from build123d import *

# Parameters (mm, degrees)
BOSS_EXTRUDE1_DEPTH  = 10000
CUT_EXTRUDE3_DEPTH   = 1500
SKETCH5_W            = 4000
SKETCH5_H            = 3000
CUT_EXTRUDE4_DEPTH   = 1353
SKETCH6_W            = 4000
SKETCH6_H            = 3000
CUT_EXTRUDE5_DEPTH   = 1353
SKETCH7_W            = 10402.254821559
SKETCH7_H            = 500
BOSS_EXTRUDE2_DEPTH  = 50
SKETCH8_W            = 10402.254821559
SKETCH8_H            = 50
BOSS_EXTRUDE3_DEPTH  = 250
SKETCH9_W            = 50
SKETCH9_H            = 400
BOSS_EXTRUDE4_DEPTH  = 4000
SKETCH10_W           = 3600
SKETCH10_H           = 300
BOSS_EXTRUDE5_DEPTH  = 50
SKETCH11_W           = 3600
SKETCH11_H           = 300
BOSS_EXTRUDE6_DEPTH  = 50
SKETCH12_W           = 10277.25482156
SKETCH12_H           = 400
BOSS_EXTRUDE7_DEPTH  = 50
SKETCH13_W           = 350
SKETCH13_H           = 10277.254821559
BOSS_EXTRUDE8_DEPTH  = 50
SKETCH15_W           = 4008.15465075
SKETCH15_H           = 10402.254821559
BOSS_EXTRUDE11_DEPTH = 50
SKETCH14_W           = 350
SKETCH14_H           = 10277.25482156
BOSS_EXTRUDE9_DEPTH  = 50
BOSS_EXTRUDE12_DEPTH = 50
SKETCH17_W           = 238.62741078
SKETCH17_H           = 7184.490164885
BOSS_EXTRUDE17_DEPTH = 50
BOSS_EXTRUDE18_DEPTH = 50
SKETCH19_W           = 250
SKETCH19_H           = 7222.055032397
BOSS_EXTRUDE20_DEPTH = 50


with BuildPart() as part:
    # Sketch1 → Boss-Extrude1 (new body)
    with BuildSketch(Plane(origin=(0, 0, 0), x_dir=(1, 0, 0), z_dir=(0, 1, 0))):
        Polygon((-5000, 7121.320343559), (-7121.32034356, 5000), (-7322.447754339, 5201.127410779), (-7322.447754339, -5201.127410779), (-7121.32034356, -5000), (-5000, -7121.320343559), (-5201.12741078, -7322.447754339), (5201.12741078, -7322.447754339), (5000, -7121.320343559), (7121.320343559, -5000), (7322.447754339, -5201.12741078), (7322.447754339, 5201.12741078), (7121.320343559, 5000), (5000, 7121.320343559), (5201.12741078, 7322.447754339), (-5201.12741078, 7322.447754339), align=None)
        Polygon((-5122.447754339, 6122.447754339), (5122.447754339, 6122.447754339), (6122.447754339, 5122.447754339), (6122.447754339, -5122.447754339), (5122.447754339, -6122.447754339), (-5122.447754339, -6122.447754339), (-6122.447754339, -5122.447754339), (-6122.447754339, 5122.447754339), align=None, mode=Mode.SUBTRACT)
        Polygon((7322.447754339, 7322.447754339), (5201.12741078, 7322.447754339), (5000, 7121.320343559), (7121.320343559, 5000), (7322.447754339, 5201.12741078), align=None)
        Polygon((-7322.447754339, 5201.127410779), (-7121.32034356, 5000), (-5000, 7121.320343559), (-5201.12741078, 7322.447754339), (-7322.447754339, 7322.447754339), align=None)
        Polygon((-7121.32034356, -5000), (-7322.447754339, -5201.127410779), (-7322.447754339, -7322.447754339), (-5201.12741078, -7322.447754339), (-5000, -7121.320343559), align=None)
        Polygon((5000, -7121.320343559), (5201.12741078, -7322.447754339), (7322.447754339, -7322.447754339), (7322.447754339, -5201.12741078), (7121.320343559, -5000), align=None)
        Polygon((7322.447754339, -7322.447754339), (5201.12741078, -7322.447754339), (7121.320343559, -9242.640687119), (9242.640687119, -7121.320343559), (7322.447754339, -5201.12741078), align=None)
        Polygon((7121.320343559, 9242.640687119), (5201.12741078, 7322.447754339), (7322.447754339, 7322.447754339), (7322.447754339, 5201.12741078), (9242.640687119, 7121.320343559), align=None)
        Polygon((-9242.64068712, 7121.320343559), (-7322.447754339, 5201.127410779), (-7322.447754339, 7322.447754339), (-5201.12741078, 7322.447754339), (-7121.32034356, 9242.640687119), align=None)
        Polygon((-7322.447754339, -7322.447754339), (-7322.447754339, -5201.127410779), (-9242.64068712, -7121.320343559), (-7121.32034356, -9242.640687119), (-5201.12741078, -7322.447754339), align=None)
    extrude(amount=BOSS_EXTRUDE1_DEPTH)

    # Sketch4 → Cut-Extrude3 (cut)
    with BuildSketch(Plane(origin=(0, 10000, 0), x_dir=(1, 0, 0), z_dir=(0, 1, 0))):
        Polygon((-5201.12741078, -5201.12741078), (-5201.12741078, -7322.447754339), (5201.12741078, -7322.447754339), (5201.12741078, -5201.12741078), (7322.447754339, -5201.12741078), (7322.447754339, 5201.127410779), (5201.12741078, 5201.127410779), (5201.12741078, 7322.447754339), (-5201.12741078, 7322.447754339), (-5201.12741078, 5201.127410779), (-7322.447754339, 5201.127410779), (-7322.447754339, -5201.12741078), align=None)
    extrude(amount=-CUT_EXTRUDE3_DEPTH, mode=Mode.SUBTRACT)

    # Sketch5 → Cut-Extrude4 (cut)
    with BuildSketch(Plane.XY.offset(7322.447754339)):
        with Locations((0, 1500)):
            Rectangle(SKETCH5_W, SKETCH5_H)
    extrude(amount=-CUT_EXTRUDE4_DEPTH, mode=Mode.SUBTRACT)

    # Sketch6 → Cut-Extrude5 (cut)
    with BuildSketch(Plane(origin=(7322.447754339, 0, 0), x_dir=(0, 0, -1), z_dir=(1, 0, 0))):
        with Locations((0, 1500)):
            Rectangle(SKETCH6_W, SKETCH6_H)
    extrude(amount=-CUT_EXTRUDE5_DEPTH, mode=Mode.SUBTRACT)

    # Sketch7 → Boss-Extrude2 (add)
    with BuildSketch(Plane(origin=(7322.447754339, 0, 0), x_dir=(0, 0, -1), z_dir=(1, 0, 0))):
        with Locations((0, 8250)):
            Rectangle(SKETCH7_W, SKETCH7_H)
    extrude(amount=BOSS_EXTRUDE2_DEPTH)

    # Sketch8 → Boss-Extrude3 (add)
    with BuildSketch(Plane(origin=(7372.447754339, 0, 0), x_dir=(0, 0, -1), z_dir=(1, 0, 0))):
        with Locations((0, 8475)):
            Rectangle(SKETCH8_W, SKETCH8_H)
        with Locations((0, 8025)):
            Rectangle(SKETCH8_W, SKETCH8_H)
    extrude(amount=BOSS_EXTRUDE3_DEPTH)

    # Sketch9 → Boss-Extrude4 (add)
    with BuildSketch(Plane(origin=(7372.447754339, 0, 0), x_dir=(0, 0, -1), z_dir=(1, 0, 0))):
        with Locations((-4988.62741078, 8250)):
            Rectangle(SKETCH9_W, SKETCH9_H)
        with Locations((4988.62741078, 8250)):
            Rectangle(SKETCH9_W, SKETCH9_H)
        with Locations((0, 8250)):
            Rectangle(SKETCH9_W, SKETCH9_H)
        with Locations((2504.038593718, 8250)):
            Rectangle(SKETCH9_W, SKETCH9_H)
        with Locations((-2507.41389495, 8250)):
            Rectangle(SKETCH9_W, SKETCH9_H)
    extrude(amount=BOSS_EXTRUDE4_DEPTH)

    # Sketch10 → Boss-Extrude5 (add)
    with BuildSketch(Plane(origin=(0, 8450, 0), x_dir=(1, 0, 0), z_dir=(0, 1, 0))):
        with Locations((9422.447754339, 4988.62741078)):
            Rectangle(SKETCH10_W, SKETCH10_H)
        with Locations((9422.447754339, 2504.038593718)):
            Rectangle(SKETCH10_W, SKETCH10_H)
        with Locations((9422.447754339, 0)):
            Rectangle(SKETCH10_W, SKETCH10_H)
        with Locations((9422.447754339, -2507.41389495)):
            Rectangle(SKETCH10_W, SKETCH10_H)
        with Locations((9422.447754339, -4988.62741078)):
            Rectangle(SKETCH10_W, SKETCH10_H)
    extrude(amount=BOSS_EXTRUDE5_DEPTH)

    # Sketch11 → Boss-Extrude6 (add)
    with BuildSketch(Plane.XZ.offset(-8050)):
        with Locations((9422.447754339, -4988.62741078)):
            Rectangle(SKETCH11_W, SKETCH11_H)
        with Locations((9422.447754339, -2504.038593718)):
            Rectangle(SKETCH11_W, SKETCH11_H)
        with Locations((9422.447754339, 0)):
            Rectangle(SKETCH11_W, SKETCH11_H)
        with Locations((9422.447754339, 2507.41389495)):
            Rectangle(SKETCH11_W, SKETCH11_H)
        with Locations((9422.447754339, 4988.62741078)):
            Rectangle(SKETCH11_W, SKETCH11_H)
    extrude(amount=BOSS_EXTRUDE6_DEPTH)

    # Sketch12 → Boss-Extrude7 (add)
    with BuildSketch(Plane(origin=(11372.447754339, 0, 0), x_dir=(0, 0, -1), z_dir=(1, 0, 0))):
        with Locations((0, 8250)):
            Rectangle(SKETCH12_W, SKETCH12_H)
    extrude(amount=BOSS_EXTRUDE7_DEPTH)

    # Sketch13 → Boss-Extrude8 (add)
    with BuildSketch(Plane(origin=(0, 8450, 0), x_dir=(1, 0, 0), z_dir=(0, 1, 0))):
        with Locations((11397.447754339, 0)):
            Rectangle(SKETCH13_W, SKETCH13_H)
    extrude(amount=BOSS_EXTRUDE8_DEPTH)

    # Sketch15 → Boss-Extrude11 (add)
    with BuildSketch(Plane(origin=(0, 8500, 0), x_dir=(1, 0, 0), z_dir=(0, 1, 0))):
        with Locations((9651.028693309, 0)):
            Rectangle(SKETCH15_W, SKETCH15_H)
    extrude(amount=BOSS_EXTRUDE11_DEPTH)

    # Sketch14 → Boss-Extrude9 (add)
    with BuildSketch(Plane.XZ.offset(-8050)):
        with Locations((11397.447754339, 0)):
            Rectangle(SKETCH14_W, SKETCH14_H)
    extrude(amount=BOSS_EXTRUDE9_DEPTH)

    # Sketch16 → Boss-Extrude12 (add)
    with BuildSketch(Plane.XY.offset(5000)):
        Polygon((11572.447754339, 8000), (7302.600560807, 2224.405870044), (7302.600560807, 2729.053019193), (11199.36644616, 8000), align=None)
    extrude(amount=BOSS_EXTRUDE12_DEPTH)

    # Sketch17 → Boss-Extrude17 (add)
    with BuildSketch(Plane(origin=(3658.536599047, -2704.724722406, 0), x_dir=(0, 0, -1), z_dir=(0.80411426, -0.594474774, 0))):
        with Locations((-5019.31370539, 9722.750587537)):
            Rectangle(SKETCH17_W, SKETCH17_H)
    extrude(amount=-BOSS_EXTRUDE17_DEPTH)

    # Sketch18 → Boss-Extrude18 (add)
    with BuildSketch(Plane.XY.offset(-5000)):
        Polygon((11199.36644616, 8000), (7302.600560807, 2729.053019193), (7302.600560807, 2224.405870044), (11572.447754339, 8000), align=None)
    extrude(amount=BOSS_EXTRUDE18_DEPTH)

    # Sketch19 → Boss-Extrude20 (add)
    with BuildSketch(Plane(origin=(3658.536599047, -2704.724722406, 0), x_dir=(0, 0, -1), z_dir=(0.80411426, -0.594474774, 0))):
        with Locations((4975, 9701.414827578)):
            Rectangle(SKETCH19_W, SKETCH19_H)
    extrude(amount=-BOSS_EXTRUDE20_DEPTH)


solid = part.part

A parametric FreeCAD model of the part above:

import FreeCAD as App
import Part
import Sketcher
Q = App.Units.Quantity


def add_polygon(sketch, points):
    """Adds a closed chain of lines whose ends are joined by coincident constraints."""
    first, n = sketch.GeometryCount, len(points)
    for a, b in zip(points, points[1:] + points[:1]):
        sketch.addGeometry(Part.LineSegment(App.Vector(*a, 0), App.Vector(*b, 0)), False)
    for i in range(n):
        sketch.addConstraint(Sketcher.Constraint("Coincident", first + i, 2, first + (i + 1) % n, 1))

doc = App.newDocument("Part")
params = doc.addObject("Spreadsheet::Sheet", "Params")
for row, (alias, value) in enumerate([
    ("sketch1_length", "3000 mm"),
    ("pad1_length", "10000 mm"),
    ("pocket1_length", "1500 mm"),
    ("sketch3_width", "4000 mm"),
    ("sketch3_height", "3000 mm"),
    ("pocket2_length", "1353 mm"),
    ("sketch4_width", "3000 mm"),
    ("sketch4_height", "4000 mm"),
    ("pocket3_length", "1353 mm"),
    ("sketch5_width", "500 mm"),
    ("pad2_length", "50 mm"),
    ("sketch6_width", "50 mm"),
    ("pad3_length", "250 mm"),
    ("sketch7_width", "400 mm"),
    ("sketch7_height", "50 mm"),
    ("pad4_length", "4000 mm"),
    ("sketch8_width", "3600 mm"),
    ("sketch8_height", "300 mm"),
    ("pad5_length", "50 mm"),
    ("sketch9_width", "3600 mm"),
    ("sketch9_height", "300 mm"),
    ("pad6_length", "50 mm"),
    ("sketch10_width", "400 mm"),
    ("pad7_length", "50 mm"),
    ("sketch11_width", "350 mm"),
    ("pad8_length", "50 mm"),
    ("pad9_length", "50 mm"),
    ("sketch13_width", "350 mm"),
    ("pad10_length", "50 mm"),
    ("pad11_length", "50 mm"),
    ("pad12_length", "50 mm"),
    ("pad13_length", "50 mm"),
    ("sketch17_width", "250 mm"),
    ("pad14_length", "50 mm"),
], start=1):
    params.set(f"A{row}", alias)
    params.set(f"B{row}", "=" + value)
    params.setAlias(f"B{row}", alias)

body = doc.addObject("PartDesign::Body", "Body")

# Sketch on XZ plane
sketch1 = body.newObject("Sketcher::SketchObject", "Sketch")
sketch1.AttachmentSupport = (doc.getObject("XZ_Plane"), [""])
sketch1.MapMode = "FlatFace"
add_polygon(sketch1, [(5201, -7322), (-5201, -7322), (-7121, -9243), (-9243, -7121), (-7322, -5201), (-7322, 5201), (-9243, 7121), (-7121, 9243), (-5201, 7322), (5201, 7322), (7121, 9243), (9243, 7121), (7322, 5201), (7322, -5201), (9243, -7121), (7121, -9243)])  # lines 0-15
add_polygon(sketch1, [(-6122, -5122), (-5122, -6122), (5122, -6122), (6122, -5122), (6122, 5122), (5122, 6122), (-5122, 6122), (-6122, 5122)])  # lines 16-23
sketch1.addConstraint([
    Sketcher.Constraint("Horizontal", 0),
    Sketcher.Constraint("Vertical", 4),
    Sketcher.Constraint("Horizontal", 8),
    Sketcher.Constraint("Vertical", 12),
    Sketcher.Constraint("Horizontal", 17),
    Sketcher.Constraint("Vertical", 19),
    Sketcher.Constraint("Horizontal", 21),
    Sketcher.Constraint("Vertical", 23),
    Sketcher.Constraint("Symmetric", 0, 2, 8, 2, -1, 1),
    Sketcher.Constraint("Symmetric", 1, 2, 9, 2, -1, 1),
    Sketcher.Constraint("Symmetric", 2, 2, 10, 2, -1, 1),
    Sketcher.Constraint("Symmetric", 3, 2, 11, 2, -1, 1),
    Sketcher.Constraint("Symmetric", 5, 2, 13, 2, -1, 1),
    Sketcher.Constraint("Symmetric", 6, 2, 14, 2, -1, 1),
    Sketcher.Constraint("Symmetric", 16, 2, 20, 2, -1, 1),
    Sketcher.Constraint("Symmetric", 18, 2, 22, 2, -1, 1),
    Sketcher.Constraint("Symmetric", 6, 2, 9, 2, -2),
    Sketcher.Constraint("Symmetric", 5, 2, 10, 2, -2),
    Sketcher.Constraint("Perpendicular", 1, 2),
    Sketcher.Constraint("Perpendicular", 2, 3),
    Sketcher.Constraint("Perpendicular", 3, 5),
    Sketcher.Constraint("Perpendicular", 5, 6),
    Sketcher.Constraint("Perpendicular", 6, 7),
    Sketcher.Constraint("Perpendicular", 11, 13),
    Sketcher.Constraint("Perpendicular", 14, 15),
    Sketcher.Constraint("Parallel", 15, 16),
    Sketcher.Constraint("Perpendicular", 16, 18),
    Sketcher.Constraint("Perpendicular", 18, 20),
    Sketcher.Constraint("Perpendicular", 20, 22),
    Sketcher.Constraint("Horizontal", 19, 2, 22, 2),
    Sketcher.Constraint("Equal", 8, 4),
    Sketcher.Constraint("Equal", 21, 19),
    Sketcher.Constraint("Equal", 1, 3),
    Sketcher.Constraint("Distance", 2, Q("3000 mm")),
    Sketcher.Constraint("DistanceY", 0, 2, 16, 2, Q("1200 mm")),
    Sketcher.Constraint("DistanceX", 3, 2, 16, 2, Q("2200 mm")),
    Sketcher.Constraint("DistanceX", 0, 2, 0, 1, Q("10402.254822 mm")),
    Sketcher.Constraint("DistanceY", 0, 2, 2, 2, Q("201.127411 mm")),
])
sketch1.setExpression("Constraints[57]", "Params.sketch1_length")
pad1 = body.newObject("PartDesign::Pad", "Pad")
pad1.Profile = sketch1
pad1.setExpression("Length", "Params.pad1_length")
pad1.Reversed = True

# Sketch on XZ plane
sketch2 = body.newObject("Sketcher::SketchObject", "Sketch001")
sketch2.AttachmentSupport = (doc.getObject("XZ_Plane"), [""])
sketch2.MapMode = "FlatFace"
sketch2.AttachmentOffset = App.Placement(App.Vector(0, 0, -10000), App.Rotation())
add_polygon(sketch2, [(-5201, 5201), (-5201, 7322), (5201, 7322), (5201, 5201), (7322, 5201), (7322, -5201), (5201, -5201), (5201, -7322), (-5201, -7322), (-5201, -5201), (-7322, -5201), (-7322, 5201)])  # lines 0-11
sketch2.addConstraint([
    Sketcher.Constraint("Vertical", 0),
    Sketcher.Constraint("Horizontal", 1),
    Sketcher.Constraint("Vertical", 2),
    Sketcher.Constraint("Horizontal", 3),
    Sketcher.Constraint("Vertical", 4),
    Sketcher.Constraint("Horizontal", 5),
    Sketcher.Constraint("Vertical", 6),
    Sketcher.Constraint("Horizontal", 7),
    Sketcher.Constraint("Vertical", 8),
    Sketcher.Constraint("Horizontal", 9),
    Sketcher.Constraint("Vertical", 10),
    Sketcher.Constraint("Horizontal", 11),
    Sketcher.Constraint("Symmetric", 0, 2, 6, 2, -1, 1),
    Sketcher.Constraint("Symmetric", 2, 2, 8, 2, -1, 1),
    Sketcher.Constraint("Symmetric", 4, 2, 10, 2, -1, 1),
    Sketcher.Constraint("Symmetric", 5, 2, 8, 2, -2),
    Sketcher.Constraint("Equal", 11, 0),
    Sketcher.Constraint("Equal", 7, 4),
    Sketcher.Constraint("DistanceX", 1, 1, 1, 2, Q("10402.254822 mm")),
    Sketcher.Constraint("DistanceX", 3, 1, 3, 2, Q("2121.320344 mm")),
])
pocket1 = body.newObject("PartDesign::Pocket", "Pocket")
pocket1.Profile = sketch2
pocket1.setExpression("Length", "Params.pocket1_length")
pocket1.Reversed = True

# Sketch on XY plane
sketch3 = body.newObject("Sketcher::SketchObject", "Sketch002")
sketch3.AttachmentSupport = (doc.getObject("XY_Plane"), [""])
sketch3.MapMode = "FlatFace"
sketch3.AttachmentOffset = App.Placement(App.Vector(0, 0, 7322.447754), App.Rotation())
add_polygon(sketch3, [(-2000, 3000), (-2000, 0), (2000, 0), (2000, 3000)])  # lines 0-3
sketch3.addConstraint([
    Sketcher.Constraint("Vertical", 0),
    Sketcher.Constraint("Horizontal", 1),
    Sketcher.Constraint("Vertical", 2),
    Sketcher.Constraint("Horizontal", 3),
    Sketcher.Constraint("Symmetric", 0, 2, 1, 2, -1, 1),
    Sketcher.Constraint("DistanceX", 1, 1, 1, 2, Q("4000 mm")),
    Sketcher.Constraint("DistanceY", 0, 2, 0, 1, Q("3000 mm")),
])
sketch3.setExpression("Constraints[9]", "Params.sketch3_width")
sketch3.setExpression("Constraints[10]", "Params.sketch3_height")
pocket2 = body.newObject("PartDesign::Pocket", "Pocket001")
pocket2.Profile = sketch3
pocket2.setExpression("Length", "Params.pocket2_length")

# Sketch on YZ plane
sketch4 = body.newObject("Sketcher::SketchObject", "Sketch003")
sketch4.AttachmentSupport = (doc.getObject("YZ_Plane"), [""])
sketch4.MapMode = "FlatFace"
sketch4.AttachmentOffset = App.Placement(App.Vector(0, 0, 7322.447754), App.Rotation())
add_polygon(sketch4, [(3000, 2000), (0, 2000), (0, -2000), (3000, -2000)])  # lines 0-3
sketch4.addConstraint([
    Sketcher.Constraint("Horizontal", 0),
    Sketcher.Constraint("Vertical", 1),
    Sketcher.Constraint("Horizontal", 2),
    Sketcher.Constraint("Vertical", 3),
    Sketcher.Constraint("Symmetric", 0, 2, 1, 2, -1, 1),
    Sketcher.Constraint("DistanceX", 0, 2, 0, 1, Q("3000 mm")),
    Sketcher.Constraint("DistanceY", 1, 2, 1, 1, Q("4000 mm")),
])
sketch4.setExpression("Constraints[9]", "Params.sketch4_width")
sketch4.setExpression("Constraints[10]", "Params.sketch4_height")
pocket3 = body.newObject("PartDesign::Pocket", "Pocket002")
pocket3.Profile = sketch4
pocket3.setExpression("Length", "Params.pocket3_length")

# Sketch on YZ plane
sketch5 = body.newObject("Sketcher::SketchObject", "Sketch004")
sketch5.AttachmentSupport = (doc.getObject("YZ_Plane"), [""])
sketch5.MapMode = "FlatFace"
sketch5.AttachmentOffset = App.Placement(App.Vector(0, 0, 7322.447754), App.Rotation())
add_polygon(sketch5, [(8500, 5201), (8000, 5201), (8000, -5201), (8500, -5201)])  # lines 0-3
sketch5.addConstraint([
    Sketcher.Constraint("Horizontal", 0),
    Sketcher.Constraint("Vertical", 1),
    Sketcher.Constraint("Horizontal", 2),
    Sketcher.Constraint("Vertical", 3),
    Sketcher.Constraint("DistanceX", 0, 2, 0, 1, Q("500 mm")),
    Sketcher.Constraint("DistanceX", -1, 1, 0, 2, Q("8000 mm")),
    Sketcher.Constraint("DistanceY", 1, 2, 1, 1, Q("10402.254822 mm")),
    Sketcher.Constraint("DistanceY", -1, 1, 0, 2, Q("5201.127411 mm")),
])
sketch5.setExpression("Constraints[8]", "Params.sketch5_width")
pad2 = body.newObject("PartDesign::Pad", "Pad001")
pad2.Profile = sketch5
pad2.setExpression("Length", "Params.pad2_length")

# Sketch on YZ plane
sketch6 = body.newObject("Sketcher::SketchObject", "Sketch005")
sketch6.AttachmentSupport = (doc.getObject("YZ_Plane"), [""])
sketch6.MapMode = "FlatFace"
sketch6.AttachmentOffset = App.Placement(App.Vector(0, 0, 7372.447754), App.Rotation())
add_polygon(sketch6, [(8500, 5201), (8450, 5201), (8450, -5201), (8500, -5201)])  # lines 0-3
add_polygon(sketch6, [(8050, 5201), (8000, 5201), (8000, -5201), (8050, -5201)])  # lines 4-7
sketch6.addConstraint([
    Sketcher.Constraint("Horizontal", 0),
    Sketcher.Constraint("Vertical", 1),
    Sketcher.Constraint("Horizontal", 2),
    Sketcher.Constraint("Vertical", 3),
    Sketcher.Constraint("Horizontal", 4),
    Sketcher.Constraint("Vertical", 5),
    Sketcher.Constraint("Horizontal", 6),
    Sketcher.Constraint("Vertical", 7),
    Sketcher.Constraint("Horizontal", 3, 2, 4, 2),
    Sketcher.Constraint("Horizontal", 2, 2, 5, 2),
    Sketcher.Constraint("Equal", 2, 4),
    Sketcher.Constraint("DistanceX", 0, 2, 0, 1, Q("50 mm")),
    Sketcher.Constraint("DistanceX", -1, 1, 0, 2, Q("8450 mm")),
    Sketcher.Constraint("DistanceX", -1, 1, 4, 2, Q("8000 mm")),
    Sketcher.Constraint("DistanceY", 1, 2, 1, 1, Q("10402.254822 mm")),
    Sketcher.Constraint("DistanceY", -1, 1, 0, 2, Q("5201.127411 mm")),
])
sketch6.setExpression("Constraints[19]", "Params.sketch6_width")
pad3 = body.newObject("PartDesign::Pad", "Pad002")
pad3.Profile = sketch6
pad3.setExpression("Length", "Params.pad3_length")

# Sketch on YZ plane
sketch7 = body.newObject("Sketcher::SketchObject", "Sketch006")
sketch7.AttachmentSupport = (doc.getObject("YZ_Plane"), [""])
sketch7.MapMode = "FlatFace"
sketch7.AttachmentOffset = App.Placement(App.Vector(0, 0, 7372.447754), App.Rotation())
add_polygon(sketch7, [(8450, 5014), (8050, 5014), (8050, 4964), (8450, 4964)])  # lines 0-3
add_polygon(sketch7, [(8450, -4964), (8050, -4964), (8050, -5014), (8450, -5014)])  # lines 4-7
add_polygon(sketch7, [(8450, 25), (8050, 25), (8050, -25), (8450, -25)])  # lines 8-11
add_polygon(sketch7, [(8450, -2479), (8050, -2479), (8050, -2529), (8450, -2529)])  # lines 12-15
add_polygon(sketch7, [(8450, 2532), (8050, 2532), (8050, 2482), (8450, 2482)])  # lines 16-19
sketch7.addConstraint([
    Sketcher.Constraint("Horizontal", 0),
    Sketcher.Constraint("Vertical", 1),
    Sketcher.Constraint("Horizontal", 2),
    Sketcher.Constraint("Vertical", 3),
    Sketcher.Constraint("Horizontal", 4),
    Sketcher.Constraint("Vertical", 5),
    Sketcher.Constraint("Horizontal", 6),
    Sketcher.Constraint("Vertical", 7),
    Sketcher.Constraint("Horizontal", 8),
    Sketcher.Constraint("Vertical", 9),
    Sketcher.Constraint("Horizontal", 10),
    Sketcher.Constraint("Vertical", 11),
    Sketcher.Constraint("Horizontal", 12),
    Sketcher.Constraint("Vertical", 13),
    Sketcher.Constraint("Horizontal", 14),
    Sketcher.Constraint("Vertical", 15),
    Sketcher.Constraint("Horizontal", 16),
    Sketcher.Constraint("Vertical", 17),
    Sketcher.Constraint("Horizontal", 18),
    Sketcher.Constraint("Vertical", 19),
    Sketcher.Constraint("Symmetric", 1, 2, 4, 2, -1),
    Sketcher.Constraint("Symmetric", 3, 2, 6, 2, -1),
    Sketcher.Constraint("Vertical", 5, 2, 8, 2),
    Sketcher.Constraint("Vertical", 7, 2, 10, 2),
    Sketcher.Constraint("Vertical", 9, 2, 12, 2),
    Sketcher.Constraint("Vertical", 11, 2, 14, 2),
    Sketcher.Constraint("Vertical", 13, 2, 16, 2),
    Sketcher.Constraint("Vertical", 15, 2, 18, 2),
    Sketcher.Constraint("Equal", 7, 9),
    Sketcher.Constraint("Equal", 11, 13),
    Sketcher.Constraint("Equal", 15, 17),
    Sketcher.Constraint("DistanceX", 0, 2, 0, 1, Q("400 mm")),
    Sketcher.Constraint("DistanceY", 1, 2, 1, 1, Q("50 mm")),
    Sketcher.Constraint("DistanceX", -1, 1, 0, 2, Q("8050 mm")),
    Sketcher.Constraint("DistanceY", -1, 1, 8, 2, Q("25 mm")),
    Sketcher.Constraint("DistanceY", -1, 1, 0, 2, Q("5013.627411 mm")),
    Sketcher.Constraint("DistanceY", 12, 2, -1, 1, Q("2479.038594 mm")),
    Sketcher.Constraint("DistanceY", -1, 1, 16, 2, Q("2532.413895 mm")),
])
sketch7.setExpression("Constraints[51]", "Params.sketch7_width")
sketch7.setExpression("Constraints[52]", "Params.sketch7_height")
pad4 = body.newObject("PartDesign::Pad", "Pad003")
pad4.Profile = sketch7
pad4.setExpression("Length", "Params.pad4_length")

# Sketch on XZ plane
sketch8 = body.newObject("Sketcher::SketchObject", "Sketch007")
sketch8.AttachmentSupport = (doc.getObject("XZ_Plane"), [""])
sketch8.MapMode = "FlatFace"
sketch8.AttachmentOffset = App.Placement(App.Vector(0, 0, -8450), App.Rotation())
add_polygon(sketch8, [(7622, -5139), (7622, -4839), (11222, -4839), (11222, -5139)])  # lines 0-3
add_polygon(sketch8, [(7622, -2654), (7622, -2354), (11222, -2354), (11222, -2654)])  # lines 4-7
add_polygon(sketch8, [(7622, -150), (7622, 150), (11222, 150), (11222, -150)])  # lines 8-11
add_polygon(sketch8, [(7622, 2357), (7622, 2657), (11222, 2657), (11222, 2357)])  # lines 12-15
add_polygon(sketch8, [(7622, 4839), (7622, 5139), (11222, 5139), (11222, 4839)])  # lines 16-19
sketch8.addConstraint([
    Sketcher.Constraint("Vertical", 0),
    Sketcher.Constraint("Horizontal", 1),
    Sketcher.Constraint("Vertical", 2),
    Sketcher.Constraint("Horizontal", 3),
    Sketcher.Constraint("Vertical", 4),
    Sketcher.Constraint("Horizontal", 5),
    Sketcher.Constraint("Vertical", 6),
    Sketcher.Constraint("Horizontal", 7),
    Sketcher.Constraint("Vertical", 8),
    Sketcher.Constraint("Horizontal", 9),
    Sketcher.Constraint("Vertical", 10),
    Sketcher.Constraint("Horizontal", 11),
    Sketcher.Constraint("Vertical", 12),
    Sketcher.Constraint("Horizontal", 13),
    Sketcher.Constraint("Vertical", 14),
    Sketcher.Constraint("Horizontal", 15),
    Sketcher.Constraint("Vertical", 16),
    Sketcher.Constraint("Horizontal", 17),
    Sketcher.Constraint("Vertical", 18),
    Sketcher.Constraint("Horizontal", 19),
    Sketcher.Constraint("Symmetric", 3, 2, 16, 2, -1),
    Sketcher.Constraint("Symmetric", 1, 2, 18, 2, -1),
    Sketcher.Constraint("Vertical", 3, 2, 4, 2),
    Sketcher.Constraint("Vertical", 2, 2, 5, 2),
    Sketcher.Constraint("Vertical", 7, 2, 8, 2),
    Sketcher.Constraint("Vertical", 6, 2, 9, 2),
    Sketcher.Constraint("Vertical", 11, 2, 12, 2),
    Sketcher.Constraint("Vertical", 10, 2, 13, 2),
    Sketcher.Constraint("Equal", 2, 4),
    Sketcher.Constraint("Equal", 6, 8),
    Sketcher.Constraint("Equal", 10, 12),
    Sketcher.Constraint("DistanceX", 1, 1, 1, 2, Q("3600 mm")),
    Sketcher.Constraint("DistanceY", 0, 1, 0, 2, Q("300 mm")),
    Sketcher.Constraint("DistanceY", -1, 1, 8, 2, Q("150 mm")),
    Sketcher.Constraint("DistanceY", 0, 2, -1, 1, Q("4838.627411 mm")),
    Sketcher.Constraint("DistanceY", 4, 2, 12, 2, Q("5011.452489 mm")),
    Sketcher.Constraint("DistanceX", -1, 1, 0, 2, Q("7622.447754 mm")),
    Sketcher.Constraint("DistanceY", 4, 2, -1, 1, Q("2354.038594 mm")),
])
sketch8.setExpression("Constraints[51]", "Params.sketch8_width")
sketch8.setExpression("Constraints[52]", "Params.sketch8_height")
pad5 = body.newObject("PartDesign::Pad", "Pad004")
pad5.Profile = sketch8
pad5.setExpression("Length", "Params.pad5_length")
pad5.Reversed = True

# Sketch on XZ plane
sketch9 = body.newObject("Sketcher::SketchObject", "Sketch008")
sketch9.AttachmentSupport = (doc.getObject("XZ_Plane"), [""])
sketch9.MapMode = "FlatFace"
sketch9.AttachmentOffset = App.Placement(App.Vector(0, 0, -8050), App.Rotation())
add_polygon(sketch9, [(7622, -4839), (7622, -5139), (11222, -5139), (11222, -4839)])  # lines 0-3
add_polygon(sketch9, [(7622, -2354), (7622, -2654), (11222, -2654), (11222, -2354)])  # lines 4-7
add_polygon(sketch9, [(7622, 150), (7622, -150), (11222, -150), (11222, 150)])  # lines 8-11
add_polygon(sketch9, [(7622, 2657), (7622, 2357), (11222, 2357), (11222, 2657)])  # lines 12-15
add_polygon(sketch9, [(7622, 5139), (7622, 4839), (11222, 4839), (11222, 5139)])  # lines 16-19
sketch9.addConstraint([
    Sketcher.Constraint("Vertical", 0),
    Sketcher.Constraint("Horizontal", 1),
    Sketcher.Constraint("Vertical", 2),
    Sketcher.Constraint("Horizontal", 3),
    Sketcher.Constraint("Vertical", 4),
    Sketcher.Constraint("Horizontal", 5),
    Sketcher.Constraint("Vertical", 6),
    Sketcher.Constraint("Horizontal", 7),
    Sketcher.Constraint("Vertical", 8),
    Sketcher.Constraint("Horizontal", 9),
    Sketcher.Constraint("Vertical", 10),
    Sketcher.Constraint("Horizontal", 11),
    Sketcher.Constraint("Vertical", 12),
    Sketcher.Constraint("Horizontal", 13),
    Sketcher.Constraint("Vertical", 14),
    Sketcher.Constraint("Horizontal", 15),
    Sketcher.Constraint("Vertical", 16),
    Sketcher.Constraint("Horizontal", 17),
    Sketcher.Constraint("Vertical", 18),
    Sketcher.Constraint("Horizontal", 19),
    Sketcher.Constraint("Symmetric", 3, 2, 16, 2, -1),
    Sketcher.Constraint("Symmetric", 1, 2, 18, 2, -1),
    Sketcher.Constraint("Vertical", 3, 2, 4, 2),
    Sketcher.Constraint("Vertical", 2, 2, 5, 2),
    Sketcher.Constraint("Vertical", 7, 2, 8, 2),
    Sketcher.Constraint("Vertical", 6, 2, 9, 2),
    Sketcher.Constraint("Vertical", 11, 2, 12, 2),
    Sketcher.Constraint("Vertical", 10, 2, 13, 2),
    Sketcher.Constraint("Equal", 2, 4),
    Sketcher.Constraint("Equal", 6, 8),
    Sketcher.Constraint("Equal", 10, 12),
    Sketcher.Constraint("DistanceX", 1, 1, 1, 2, Q("3600 mm")),
    Sketcher.Constraint("DistanceY", 0, 2, 0, 1, Q("300 mm")),
    Sketcher.Constraint("DistanceY", 8, 2, -1, 1, Q("150 mm")),
    Sketcher.Constraint("DistanceY", 0, 2, -1, 1, Q("5138.627411 mm")),
    Sketcher.Constraint("DistanceY", 7, 2, 12, 2, Q("4711.452489 mm")),
    Sketcher.Constraint("DistanceX", -1, 1, 0, 2, Q("7622.447754 mm")),
    Sketcher.Constraint("DistanceY", 4, 2, -1, 1, Q("2654.038594 mm")),
])
sketch9.setExpression("Constraints[51]", "Params.sketch9_width")
sketch9.setExpression("Constraints[52]", "Params.sketch9_height")
pad6 = body.newObject("PartDesign::Pad", "Pad005")
pad6.Profile = sketch9
pad6.setExpression("Length", "Params.pad6_length")

# Sketch on YZ plane
sketch10 = body.newObject("Sketcher::SketchObject", "Sketch009")
sketch10.AttachmentSupport = (doc.getObject("YZ_Plane"), [""])
sketch10.MapMode = "FlatFace"
sketch10.AttachmentOffset = App.Placement(App.Vector(0, 0, 11372.447754), App.Rotation())
add_polygon(sketch10, [(8450, 5139), (8050, 5139), (8050, -5139), (8450, -5139)])  # lines 0-3
sketch10.addConstraint([
    Sketcher.Constraint("Horizontal", 0),
    Sketcher.Constraint("Vertical", 1),
    Sketcher.Constraint("Horizontal", 2),
    Sketcher.Constraint("Vertical", 3),
    Sketcher.Constraint("DistanceX", 0, 2, 0, 1, Q("400 mm")),
    Sketcher.Constraint("DistanceX", -1, 1, 0, 2, Q("8050 mm")),
    Sketcher.Constraint("DistanceY", 1, 2, 1, 1, Q("10277.254822 mm")),
    Sketcher.Constraint("DistanceY", -1, 1, 0, 2, Q("5138.627411 mm")),
])
sketch10.setExpression("Constraints[8]", "Params.sketch10_width")
pad7 = body.newObject("PartDesign::Pad", "Pad006")
pad7.Profile = sketch10
pad7.setExpression("Length", "Params.pad7_length")

# Sketch on XZ plane
sketch11 = body.newObject("Sketcher::SketchObject", "Sketch010")
sketch11.AttachmentSupport = (doc.getObject("XZ_Plane"), [""])
sketch11.MapMode = "FlatFace"
sketch11.AttachmentOffset = App.Placement(App.Vector(0, 0, -8450), App.Rotation())
add_polygon(sketch11, [(11222, -5139), (11222, 5139), (11572, 5139), (11572, -5139)])  # lines 0-3
sketch11.addConstraint([
    Sketcher.Constraint("Vertical", 0),
    Sketcher.Constraint("Horizontal", 1),
    Sketcher.Constraint("Vertical", 2),
    Sketcher.Constraint("Horizontal", 3),
    Sketcher.Constraint("DistanceX", 1, 1, 1, 2, Q("350 mm")),
    Sketcher.Constraint("DistanceY", 0, 1, 0, 2, Q("10277.254822 mm")),
    Sketcher.Constraint("DistanceY", -1, 1, 0, 2, Q("5138.627411 mm")),
    Sketcher.Constraint("DistanceX", -1, 1, 0, 2, Q("11222.447754 mm")),
])
sketch11.setExpression("Constraints[8]", "Params.sketch11_width")
pad8 = body.newObject("PartDesign::Pad", "Pad007")
pad8.Profile = sketch11
pad8.setExpression("Length", "Params.pad8_length")
pad8.Reversed = True

# Sketch on XZ plane
sketch12 = body.newObject("Sketcher::SketchObject", "Sketch011")
sketch12.AttachmentSupport = (doc.getObject("XZ_Plane"), [""])
sketch12.MapMode = "FlatFace"
sketch12.AttachmentOffset = App.Placement(App.Vector(0, 0, -8500), App.Rotation())
add_polygon(sketch12, [(7647, -5201), (7647, 5201), (11655, 5201), (11655, -5201)])  # lines 0-3
sketch12.addConstraint([
    Sketcher.Constraint("Vertical", 0),
    Sketcher.Constraint("Horizontal", 1),
    Sketcher.Constraint("Vertical", 2),
    Sketcher.Constraint("Horizontal", 3),
    Sketcher.Constraint("DistanceX", 1, 1, 1, 2, Q("4008.154651 mm")),
    Sketcher.Constraint("DistanceY", 0, 1, 0, 2, Q("10402.254822 mm")),
    Sketcher.Constraint("DistanceY", -1, 1, 0, 2, Q("5201.127411 mm")),
    Sketcher.Constraint("DistanceX", -1, 1, 1, 2, Q("11655.106019 mm")),
])
pad9 = body.newObject("PartDesign::Pad", "Pad008")
pad9.Profile = sketch12
pad9.setExpression("Length", "Params.pad9_length")
pad9.Reversed = True

# Sketch on XZ plane
sketch13 = body.newObject("Sketcher::SketchObject", "Sketch012")
sketch13.AttachmentSupport = (doc.getObject("XZ_Plane"), [""])
sketch13.MapMode = "FlatFace"
sketch13.AttachmentOffset = App.Placement(App.Vector(0, 0, -8050), App.Rotation())
add_polygon(sketch13, [(11222, 5139), (11222, -5139), (11572, -5139), (11572, 5139)])  # lines 0-3
sketch13.addConstraint([
    Sketcher.Constraint("Vertical", 0),
    Sketcher.Constraint("Horizontal", 1),
    Sketcher.Constraint("Vertical", 2),
    Sketcher.Constraint("Horizontal", 3),
    Sketcher.Constraint("DistanceX", 1, 1, 1, 2, Q("350 mm")),
    Sketcher.Constraint("DistanceY", 0, 2, 0, 1, Q("10277.254822 mm")),
    Sketcher.Constraint("DistanceY", 0, 2, -1, 1, Q("5138.627411 mm")),
    Sketcher.Constraint("DistanceX", -1, 1, 0, 2, Q("11222.447754 mm")),
])
sketch13.setExpression("Constraints[8]", "Params.sketch13_width")
pad10 = body.newObject("PartDesign::Pad", "Pad009")
pad10.Profile = sketch13
pad10.setExpression("Length", "Params.pad10_length")

# Sketch on XY plane
sketch14 = body.newObject("Sketcher::SketchObject", "Sketch013")
sketch14.AttachmentSupport = (doc.getObject("XY_Plane"), [""])
sketch14.MapMode = "FlatFace"
sketch14.AttachmentOffset = App.Placement(App.Vector(0, 0, 5000), App.Rotation())
add_polygon(sketch14, [(7303, 2224), (11572, 8000), (11199, 8000), (7303, 2729)])  # lines 0-3
sketch14.addConstraint([
    Sketcher.Constraint("Horizontal", 1),
    Sketcher.Constraint("Vertical", 3),
    Sketcher.Constraint("Parallel", 0, 2),
    Sketcher.Constraint("DistanceY", -1, 1, 0, 2, Q("8000 mm")),
    Sketcher.Constraint("DistanceX", 1, 2, 1, 1, Q("373.081308 mm")),
    Sketcher.Constraint("DistanceY", 3, 2, 3, 1, Q("504.647149 mm")),
    Sketcher.Constraint("Distance", 2, Q("6554.97265 mm")),
    Sketcher.Constraint("DistanceX", -1, 1, 2, 2, Q("7302.600561 mm")),
])
pad11 = body.newObject("PartDesign::Pad", "Pad010")
pad11.Profile = sketch14
pad11.setExpression("Length", "Params.pad11_length")

# Sketch on an angled plane
sketch15 = body.newObject("Sketcher::SketchObject", "Sketch014")
sketch15.Placement = App.Placement(App.Vector(3658.536599, -2704.724722, 0), App.Rotation(App.Vector(0, 0, -1), App.Vector(0.594474774, 0.80411426, 0), App.Vector(0.80411426, -0.594474774, 0), "ZXY"))
add_polygon(sketch15, [(-5139, 13315), (-5139, 6131), (-4900, 6131), (-4900, 13315)])  # lines 0-3
sketch15.addConstraint([
    Sketcher.Constraint("Vertical", 0),
    Sketcher.Constraint("Horizontal", 1),
    Sketcher.Constraint("Vertical", 2),
    Sketcher.Constraint("Horizontal", 3),
    Sketcher.Constraint("DistanceX", 1, 2, -1, 1, Q("4900 mm")),
    Sketcher.Constraint("DistanceX", 1, 1, 1, 2, Q("238.627411 mm")),
    Sketcher.Constraint("DistanceY", 0, 2, 0, 1, Q("7184.490165 mm")),
    Sketcher.Constraint("DistanceY", -1, 1, 2, 2, Q("13314.995671 mm")),
])
pad12 = body.newObject("PartDesign::Pad", "Pad011")
pad12.Profile = sketch15
pad12.setExpression("Length", "Params.pad12_length")
pad12.Reversed = True

# Sketch on XY plane
sketch16 = body.newObject("Sketcher::SketchObject", "Sketch015")
sketch16.AttachmentSupport = (doc.getObject("XY_Plane"), [""])
sketch16.MapMode = "FlatFace"
sketch16.AttachmentOffset = App.Placement(App.Vector(0, 0, -5000), App.Rotation())
add_polygon(sketch16, [(11199, 8000), (7303, 2729), (7303, 2224), (11572, 8000)])  # lines 0-3
sketch16.addConstraint([
    Sketcher.Constraint("Vertical", 1),
    Sketcher.Constraint("Horizontal", 3),
    Sketcher.Constraint("Parallel", 0, 2),
    Sketcher.Constraint("DistanceY", -1, 1, 2, 2, Q("8000 mm")),
    Sketcher.Constraint("DistanceX", 3, 2, 3, 1, Q("373.081308 mm")),
    Sketcher.Constraint("DistanceY", 1, 2, 1, 1, Q("504.647149 mm")),
    Sketcher.Constraint("Distance", 0, Q("6554.97265 mm")),
    Sketcher.Constraint("DistanceX", -1, 1, 0, 2, Q("7302.600561 mm")),
])
pad13 = body.newObject("PartDesign::Pad", "Pad012")
pad13.Profile = sketch16
pad13.setExpression("Length", "Params.pad13_length")

# Sketch on an angled plane
sketch17 = body.newObject("Sketcher::SketchObject", "Sketch016")
sketch17.Placement = App.Placement(App.Vector(3658.536599, -2704.724722, 0), App.Rotation(App.Vector(0, 0, -1), App.Vector(0.594474774, 0.80411426, 0), App.Vector(0.80411426, -0.594474774, 0), "ZXY"))
add_polygon(sketch17, [(4850, 13312), (4850, 6090), (5100, 6090), (5100, 13312)])  # lines 0-3
sketch17.addConstraint([
    Sketcher.Constraint("Vertical", 0),
    Sketcher.Constraint("Horizontal", 1),
    Sketcher.Constraint("Vertical", 2),
    Sketcher.Constraint("Horizontal", 3),
    Sketcher.Constraint("DistanceX", 1, 1, 1, 2, Q("250 mm")),
    Sketcher.Constraint("DistanceX", -1, 1, 0, 2, Q("4850 mm")),
    Sketcher.Constraint("DistanceY", 0, 2, 0, 1, Q("7222.055033 mm")),
    Sketcher.Constraint("DistanceY", -1, 1, 0, 2, Q("6090.387312 mm")),
])
sketch17.setExpression("Constraints[8]", "Params.sketch17_width")
pad14 = body.newObject("PartDesign::Pad", "Pad013")
pad14.Profile = sketch17
pad14.setExpression("Length", "Params.pad14_length")
pad14.Reversed = True

doc.recompute()
